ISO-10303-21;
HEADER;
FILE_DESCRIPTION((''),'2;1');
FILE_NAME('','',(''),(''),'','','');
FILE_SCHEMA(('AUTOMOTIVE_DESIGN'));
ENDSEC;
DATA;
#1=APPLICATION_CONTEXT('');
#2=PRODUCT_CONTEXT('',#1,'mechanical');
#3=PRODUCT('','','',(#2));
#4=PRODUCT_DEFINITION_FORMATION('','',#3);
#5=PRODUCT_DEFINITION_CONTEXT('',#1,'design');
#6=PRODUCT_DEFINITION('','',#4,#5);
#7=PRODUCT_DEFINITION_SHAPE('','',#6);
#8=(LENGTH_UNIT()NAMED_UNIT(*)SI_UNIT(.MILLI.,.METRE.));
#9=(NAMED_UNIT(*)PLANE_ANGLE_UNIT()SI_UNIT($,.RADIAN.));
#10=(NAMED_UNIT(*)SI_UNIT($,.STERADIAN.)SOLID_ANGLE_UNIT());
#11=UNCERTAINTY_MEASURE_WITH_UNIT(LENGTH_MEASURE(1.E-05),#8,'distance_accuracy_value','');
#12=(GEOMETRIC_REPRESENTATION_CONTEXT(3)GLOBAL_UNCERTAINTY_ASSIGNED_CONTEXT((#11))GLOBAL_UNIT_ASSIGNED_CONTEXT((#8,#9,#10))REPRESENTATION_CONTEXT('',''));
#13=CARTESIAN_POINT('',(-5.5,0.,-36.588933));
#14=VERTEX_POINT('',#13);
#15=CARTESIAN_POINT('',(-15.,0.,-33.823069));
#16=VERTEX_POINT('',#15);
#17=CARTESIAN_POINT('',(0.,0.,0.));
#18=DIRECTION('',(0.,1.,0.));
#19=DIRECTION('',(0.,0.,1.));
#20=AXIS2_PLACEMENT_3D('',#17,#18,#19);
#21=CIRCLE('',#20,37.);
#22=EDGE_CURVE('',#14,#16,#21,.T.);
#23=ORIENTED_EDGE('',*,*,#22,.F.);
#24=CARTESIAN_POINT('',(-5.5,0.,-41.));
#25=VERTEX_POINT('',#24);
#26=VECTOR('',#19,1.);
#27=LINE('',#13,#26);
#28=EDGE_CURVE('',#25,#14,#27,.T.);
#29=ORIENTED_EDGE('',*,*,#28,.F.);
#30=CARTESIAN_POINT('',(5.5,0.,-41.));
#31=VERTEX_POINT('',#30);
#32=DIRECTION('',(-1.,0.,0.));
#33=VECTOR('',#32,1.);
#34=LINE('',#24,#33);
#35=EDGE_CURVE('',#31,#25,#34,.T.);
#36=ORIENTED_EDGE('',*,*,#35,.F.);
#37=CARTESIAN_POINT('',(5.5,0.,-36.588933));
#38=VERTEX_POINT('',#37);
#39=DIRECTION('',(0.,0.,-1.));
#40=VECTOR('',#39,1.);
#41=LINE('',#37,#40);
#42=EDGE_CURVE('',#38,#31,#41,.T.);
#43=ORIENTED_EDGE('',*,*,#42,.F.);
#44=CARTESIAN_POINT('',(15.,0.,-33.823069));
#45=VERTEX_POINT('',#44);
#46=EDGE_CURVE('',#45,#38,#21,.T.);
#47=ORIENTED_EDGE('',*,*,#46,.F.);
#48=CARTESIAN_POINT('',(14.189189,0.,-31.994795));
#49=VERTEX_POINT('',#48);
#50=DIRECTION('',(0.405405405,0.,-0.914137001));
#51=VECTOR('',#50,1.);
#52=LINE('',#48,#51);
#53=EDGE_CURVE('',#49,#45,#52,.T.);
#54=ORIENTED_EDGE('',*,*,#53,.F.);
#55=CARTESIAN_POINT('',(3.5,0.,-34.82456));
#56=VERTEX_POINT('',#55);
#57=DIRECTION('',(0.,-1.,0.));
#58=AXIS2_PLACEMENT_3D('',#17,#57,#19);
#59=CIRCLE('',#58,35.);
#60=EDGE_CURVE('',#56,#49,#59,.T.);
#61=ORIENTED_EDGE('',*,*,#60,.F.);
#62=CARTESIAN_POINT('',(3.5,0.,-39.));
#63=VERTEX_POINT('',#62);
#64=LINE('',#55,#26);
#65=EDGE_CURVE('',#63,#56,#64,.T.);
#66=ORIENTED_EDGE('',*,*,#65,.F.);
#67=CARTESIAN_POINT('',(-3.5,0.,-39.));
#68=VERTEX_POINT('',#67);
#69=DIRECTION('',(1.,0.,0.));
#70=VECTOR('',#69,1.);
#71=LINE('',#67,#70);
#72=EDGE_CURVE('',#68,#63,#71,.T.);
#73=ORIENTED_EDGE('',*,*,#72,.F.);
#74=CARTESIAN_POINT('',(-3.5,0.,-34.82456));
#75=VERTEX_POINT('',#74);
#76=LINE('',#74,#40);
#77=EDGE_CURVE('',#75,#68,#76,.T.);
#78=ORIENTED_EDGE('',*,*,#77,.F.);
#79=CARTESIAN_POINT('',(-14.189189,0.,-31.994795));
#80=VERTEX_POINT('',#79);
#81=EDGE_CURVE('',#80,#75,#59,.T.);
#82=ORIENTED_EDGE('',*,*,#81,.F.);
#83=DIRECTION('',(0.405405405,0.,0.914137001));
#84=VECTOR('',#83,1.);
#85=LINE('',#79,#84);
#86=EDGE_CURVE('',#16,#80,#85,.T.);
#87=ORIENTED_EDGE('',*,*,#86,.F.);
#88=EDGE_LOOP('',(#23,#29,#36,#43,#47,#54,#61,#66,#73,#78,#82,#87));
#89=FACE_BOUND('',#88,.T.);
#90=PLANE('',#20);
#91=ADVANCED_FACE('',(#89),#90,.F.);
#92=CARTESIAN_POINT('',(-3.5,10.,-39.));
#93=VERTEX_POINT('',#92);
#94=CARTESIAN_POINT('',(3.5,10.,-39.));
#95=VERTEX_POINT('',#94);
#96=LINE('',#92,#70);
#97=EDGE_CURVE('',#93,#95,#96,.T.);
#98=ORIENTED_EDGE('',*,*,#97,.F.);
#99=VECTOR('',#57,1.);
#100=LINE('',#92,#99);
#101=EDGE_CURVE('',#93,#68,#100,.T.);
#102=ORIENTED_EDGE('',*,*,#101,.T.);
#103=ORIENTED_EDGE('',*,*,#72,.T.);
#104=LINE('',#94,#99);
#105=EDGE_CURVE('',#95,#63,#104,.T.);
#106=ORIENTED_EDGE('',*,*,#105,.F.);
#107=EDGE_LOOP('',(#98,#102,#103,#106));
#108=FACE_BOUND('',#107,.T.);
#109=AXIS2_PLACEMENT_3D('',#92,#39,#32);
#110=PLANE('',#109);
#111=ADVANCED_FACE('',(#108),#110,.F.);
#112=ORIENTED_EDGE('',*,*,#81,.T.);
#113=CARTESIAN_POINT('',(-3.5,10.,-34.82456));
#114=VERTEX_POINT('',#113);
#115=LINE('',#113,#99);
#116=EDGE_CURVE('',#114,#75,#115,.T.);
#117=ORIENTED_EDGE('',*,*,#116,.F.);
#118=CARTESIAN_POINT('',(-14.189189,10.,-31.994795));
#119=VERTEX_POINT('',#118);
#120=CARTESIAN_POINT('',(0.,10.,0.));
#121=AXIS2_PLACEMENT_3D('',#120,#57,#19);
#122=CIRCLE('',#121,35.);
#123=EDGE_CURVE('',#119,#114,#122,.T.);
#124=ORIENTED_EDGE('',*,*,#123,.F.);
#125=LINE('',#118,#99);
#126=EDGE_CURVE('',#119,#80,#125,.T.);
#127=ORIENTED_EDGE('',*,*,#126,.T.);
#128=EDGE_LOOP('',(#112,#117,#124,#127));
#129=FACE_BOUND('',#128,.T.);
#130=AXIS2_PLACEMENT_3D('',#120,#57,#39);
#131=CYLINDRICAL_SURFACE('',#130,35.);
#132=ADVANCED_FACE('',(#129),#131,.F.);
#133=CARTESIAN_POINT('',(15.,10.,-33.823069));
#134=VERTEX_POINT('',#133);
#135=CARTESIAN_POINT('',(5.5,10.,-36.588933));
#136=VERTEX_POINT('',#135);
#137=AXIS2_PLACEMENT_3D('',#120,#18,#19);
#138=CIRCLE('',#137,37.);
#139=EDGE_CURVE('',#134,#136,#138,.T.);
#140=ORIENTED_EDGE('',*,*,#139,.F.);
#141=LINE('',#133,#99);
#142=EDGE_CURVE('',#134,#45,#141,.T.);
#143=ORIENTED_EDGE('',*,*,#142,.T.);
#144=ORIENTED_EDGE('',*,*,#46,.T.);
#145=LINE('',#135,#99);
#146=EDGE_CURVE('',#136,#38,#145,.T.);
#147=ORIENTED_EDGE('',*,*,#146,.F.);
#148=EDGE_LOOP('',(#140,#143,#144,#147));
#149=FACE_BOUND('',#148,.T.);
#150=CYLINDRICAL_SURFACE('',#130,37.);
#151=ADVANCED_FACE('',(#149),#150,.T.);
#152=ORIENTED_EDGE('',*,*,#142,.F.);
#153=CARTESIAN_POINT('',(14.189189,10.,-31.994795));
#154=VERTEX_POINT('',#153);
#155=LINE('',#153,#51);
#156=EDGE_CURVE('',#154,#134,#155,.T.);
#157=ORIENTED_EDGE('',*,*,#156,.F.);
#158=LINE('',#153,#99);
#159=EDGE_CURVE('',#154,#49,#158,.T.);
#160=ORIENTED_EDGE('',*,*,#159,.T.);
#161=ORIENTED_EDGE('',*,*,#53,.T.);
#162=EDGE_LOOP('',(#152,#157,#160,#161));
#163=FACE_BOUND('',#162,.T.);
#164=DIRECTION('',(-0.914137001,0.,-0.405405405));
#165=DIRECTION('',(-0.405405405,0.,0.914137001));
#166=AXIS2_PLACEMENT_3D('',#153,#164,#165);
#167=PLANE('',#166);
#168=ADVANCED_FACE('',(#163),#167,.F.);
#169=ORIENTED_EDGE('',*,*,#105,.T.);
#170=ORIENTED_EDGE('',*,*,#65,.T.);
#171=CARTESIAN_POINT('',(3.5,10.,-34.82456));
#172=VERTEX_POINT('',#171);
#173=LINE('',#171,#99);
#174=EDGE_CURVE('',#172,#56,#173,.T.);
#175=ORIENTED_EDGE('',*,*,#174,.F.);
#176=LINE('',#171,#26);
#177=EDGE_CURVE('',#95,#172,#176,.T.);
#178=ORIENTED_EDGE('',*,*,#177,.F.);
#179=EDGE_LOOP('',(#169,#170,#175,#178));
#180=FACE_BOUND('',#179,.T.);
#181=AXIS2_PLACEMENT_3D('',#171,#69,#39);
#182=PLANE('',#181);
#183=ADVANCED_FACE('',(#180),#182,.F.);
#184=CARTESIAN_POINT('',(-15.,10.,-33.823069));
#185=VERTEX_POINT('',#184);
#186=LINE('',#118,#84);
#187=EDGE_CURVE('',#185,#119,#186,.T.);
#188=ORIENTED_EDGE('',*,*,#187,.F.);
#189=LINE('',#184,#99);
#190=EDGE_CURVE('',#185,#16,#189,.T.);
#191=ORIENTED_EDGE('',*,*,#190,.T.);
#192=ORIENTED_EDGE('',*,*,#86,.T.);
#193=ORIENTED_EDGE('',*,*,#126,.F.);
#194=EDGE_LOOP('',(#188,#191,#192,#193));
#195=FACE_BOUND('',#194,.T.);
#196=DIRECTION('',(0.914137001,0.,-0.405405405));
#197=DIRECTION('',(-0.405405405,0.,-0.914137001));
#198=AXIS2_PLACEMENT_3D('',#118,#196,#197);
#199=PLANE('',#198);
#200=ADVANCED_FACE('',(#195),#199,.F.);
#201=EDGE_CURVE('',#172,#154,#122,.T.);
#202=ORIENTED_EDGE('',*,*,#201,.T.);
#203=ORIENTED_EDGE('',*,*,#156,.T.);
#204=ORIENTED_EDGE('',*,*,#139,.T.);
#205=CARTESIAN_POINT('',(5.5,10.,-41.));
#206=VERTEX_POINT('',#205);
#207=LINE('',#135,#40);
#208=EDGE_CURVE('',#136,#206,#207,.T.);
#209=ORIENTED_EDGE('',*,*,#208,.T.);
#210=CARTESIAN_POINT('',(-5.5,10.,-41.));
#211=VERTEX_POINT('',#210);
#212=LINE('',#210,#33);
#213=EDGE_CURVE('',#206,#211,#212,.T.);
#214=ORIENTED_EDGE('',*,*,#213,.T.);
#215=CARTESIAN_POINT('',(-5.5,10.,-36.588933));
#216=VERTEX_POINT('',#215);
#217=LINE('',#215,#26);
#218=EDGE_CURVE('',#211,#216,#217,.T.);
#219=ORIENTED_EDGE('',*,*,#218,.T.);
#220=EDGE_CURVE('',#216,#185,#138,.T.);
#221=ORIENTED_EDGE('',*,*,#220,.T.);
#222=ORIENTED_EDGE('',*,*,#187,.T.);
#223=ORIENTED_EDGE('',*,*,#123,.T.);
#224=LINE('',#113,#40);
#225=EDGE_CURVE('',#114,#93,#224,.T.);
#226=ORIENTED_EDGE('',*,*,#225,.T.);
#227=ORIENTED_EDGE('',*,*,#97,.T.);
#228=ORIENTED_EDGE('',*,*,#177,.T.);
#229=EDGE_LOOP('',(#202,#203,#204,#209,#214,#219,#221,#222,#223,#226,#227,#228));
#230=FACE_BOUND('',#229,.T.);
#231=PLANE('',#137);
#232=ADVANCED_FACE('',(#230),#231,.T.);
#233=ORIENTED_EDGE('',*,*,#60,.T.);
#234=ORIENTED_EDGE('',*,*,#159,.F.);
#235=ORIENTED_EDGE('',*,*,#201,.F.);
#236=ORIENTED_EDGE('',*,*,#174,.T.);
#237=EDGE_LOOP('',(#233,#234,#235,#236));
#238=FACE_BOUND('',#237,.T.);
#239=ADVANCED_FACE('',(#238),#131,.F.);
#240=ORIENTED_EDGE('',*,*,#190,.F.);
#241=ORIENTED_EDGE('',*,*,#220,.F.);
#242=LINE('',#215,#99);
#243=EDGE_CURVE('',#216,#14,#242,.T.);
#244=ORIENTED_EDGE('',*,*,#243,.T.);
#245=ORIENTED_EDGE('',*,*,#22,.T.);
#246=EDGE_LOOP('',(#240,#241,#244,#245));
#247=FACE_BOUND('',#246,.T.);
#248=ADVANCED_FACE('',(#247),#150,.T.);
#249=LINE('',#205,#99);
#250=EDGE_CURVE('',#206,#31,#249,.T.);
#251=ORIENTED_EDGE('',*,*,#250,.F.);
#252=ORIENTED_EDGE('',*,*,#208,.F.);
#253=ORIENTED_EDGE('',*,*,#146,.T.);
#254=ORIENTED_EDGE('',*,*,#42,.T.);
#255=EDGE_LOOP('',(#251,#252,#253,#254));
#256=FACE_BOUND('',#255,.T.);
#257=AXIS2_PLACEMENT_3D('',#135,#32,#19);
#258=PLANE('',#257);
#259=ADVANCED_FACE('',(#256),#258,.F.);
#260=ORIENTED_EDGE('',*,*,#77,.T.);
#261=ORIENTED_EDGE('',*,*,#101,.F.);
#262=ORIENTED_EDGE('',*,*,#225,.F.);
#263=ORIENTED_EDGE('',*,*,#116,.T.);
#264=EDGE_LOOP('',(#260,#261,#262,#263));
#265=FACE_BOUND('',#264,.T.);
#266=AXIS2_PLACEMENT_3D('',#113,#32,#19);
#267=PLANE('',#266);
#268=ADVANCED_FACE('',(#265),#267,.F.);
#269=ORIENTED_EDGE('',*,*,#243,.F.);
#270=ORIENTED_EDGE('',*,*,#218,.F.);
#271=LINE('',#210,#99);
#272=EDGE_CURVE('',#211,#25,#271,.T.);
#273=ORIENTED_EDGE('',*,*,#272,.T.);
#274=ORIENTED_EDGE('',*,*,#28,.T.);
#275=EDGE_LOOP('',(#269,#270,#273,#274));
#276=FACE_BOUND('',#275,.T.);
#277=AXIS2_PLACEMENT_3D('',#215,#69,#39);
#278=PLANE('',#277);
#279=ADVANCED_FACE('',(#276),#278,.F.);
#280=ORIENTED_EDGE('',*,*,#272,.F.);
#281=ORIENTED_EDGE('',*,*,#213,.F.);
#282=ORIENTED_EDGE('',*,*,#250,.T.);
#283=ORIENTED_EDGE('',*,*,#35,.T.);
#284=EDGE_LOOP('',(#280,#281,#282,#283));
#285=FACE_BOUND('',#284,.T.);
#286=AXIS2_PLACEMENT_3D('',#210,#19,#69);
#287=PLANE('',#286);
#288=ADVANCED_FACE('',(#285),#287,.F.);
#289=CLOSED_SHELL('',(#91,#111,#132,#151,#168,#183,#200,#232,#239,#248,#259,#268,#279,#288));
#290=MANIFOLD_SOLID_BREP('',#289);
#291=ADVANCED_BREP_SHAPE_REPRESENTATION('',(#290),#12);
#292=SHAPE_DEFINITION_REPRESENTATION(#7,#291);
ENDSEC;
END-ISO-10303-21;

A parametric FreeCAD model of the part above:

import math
import FreeCAD as App
import Part
import Sketcher

V = App.Vector

doc = App.newDocument("Part")
params = doc.addObject("Spreadsheet::Sheet", "Params")
for row, (alias, value) in enumerate([
    ("sketch1_radius", "35 mm"),
    ("sketch1_radius2", "37 mm"),
    ("sketch1_width", "7 mm"),
    ("sketch1_width2", "11 mm"),
    ("pad1_length", "10 mm"),
], start=1):
    params.set(f"A{row}", alias)
    params.set(f"B{row}", "=" + value)
    params.setAlias(f"B{row}", alias)

body = doc.addObject("PartDesign::Body", "Body")

# Sketch on XZ plane
sketch1 = body.newObject("Sketcher::SketchObject", "Sketch")
sketch1.AttachmentSupport = (doc.getObject("XZ_Plane"), [""])
sketch1.MapMode = "FlatFace"
sketch1.addGeometry([
    Part.LineSegment(V(-15, -33.8, 0), V(-14.2, -32, 0)),  # 0
    Part.ArcOfCircle(Part.Circle(V(0, 0, 0), V(0, 0, 1), 35), math.radians(-113.92), math.radians(-95.74)),  # 1
    Part.LineSegment(V(-3.5, -34.8, 0), V(-3.5, -39, 0)),  # 2
    Part.LineSegment(V(-3.5, -39, 0), V(3.5, -39, 0)),  # 3
    Part.LineSegment(V(3.5, -39, 0), V(3.5, -34.8, 0)),  # 4
    Part.ArcOfCircle(Part.Circle(V(0, 0, 0), V(0, 0, 1), 35), math.radians(-84.26), math.radians(-66.08)),  # 5
    Part.LineSegment(V(14.2, -32, 0), V(15, -33.8, 0)),  # 6
    Part.ArcOfCircle(Part.Circle(V(0, 0, 0), V(0, 0, 1), 37), math.radians(-81.45), math.radians(-66.08)),  # 7
    Part.LineSegment(V(5.5, -36.6, 0), V(5.5, -41, 0)),  # 8
    Part.LineSegment(V(5.5, -41, 0), V(-5.5, -41, 0)),  # 9
    Part.LineSegment(V(-5.5, -41, 0), V(-5.5, -36.6, 0)),  # 10
    Part.ArcOfCircle(Part.Circle(V(0, 0, 0), V(0, 0, 1), 37), math.radians(-113.92), math.radians(-98.55)),  # 11
], False)
sketch1.addConstraint([
    Sketcher.Constraint("Coincident", 0, 2, 1, 1),
    Sketcher.Constraint("Coincident", 1, 2, 2, 1),
    Sketcher.Constraint("Coincident", 2, 2, 3, 1),
    Sketcher.Constraint("Coincident", 3, 2, 4, 1),
    Sketcher.Constraint("Coincident", 4, 2, 5, 1),
    Sketcher.Constraint("Coincident", 5, 2, 6, 1),
    Sketcher.Constraint("Coincident", 6, 2, 7, 2),
    Sketcher.Constraint("Coincident", 7, 1, 8, 1),
    Sketcher.Constraint("Coincident", 8, 2, 9, 1),
    Sketcher.Constraint("Coincident", 9, 2, 10, 1),
    Sketcher.Constraint("Coincident", 10, 2, 11, 2),
    Sketcher.Constraint("Coincident", 11, 1, 0, 1),
    Sketcher.Constraint("Vertical", 2),
    Sketcher.Constraint("Horizontal", 3),
    Sketcher.Constraint("Vertical", 4),
    Sketcher.Constraint("Vertical", 8),
    Sketcher.Constraint("Horizontal", 9),
    Sketcher.Constraint("Vertical", 10),
    Sketcher.Constraint("Coincident", 1, 3, -1, 1),
    Sketcher.Constraint("Coincident", 5, 3, -1, 1),
    Sketcher.Constraint("Coincident", 7, 3, -1, 1),
    Sketcher.Constraint("Coincident", 11, 3, -1, 1),
    Sketcher.Constraint("Equal", 1, 5),
    Sketcher.Constraint("Equal", 7, 11),
    Sketcher.Constraint("Horizontal", 1, 2, 4, 2),
    Sketcher.Constraint("Horizontal", 0, 2, 5, 2),
    Sketcher.Constraint("Horizontal", 7, 1, 10, 2),
    Sketcher.Constraint("Horizontal", 6, 2, 11, 1),
    Sketcher.Constraint("Radius", 1, 35.0),
    Sketcher.Constraint("Radius", 7, 37.0),
    Sketcher.Constraint("DistanceX", 3, 1, 3, 2, 7.0),
    Sketcher.Constraint("DistanceX", 9, 2, 9, 1, 11.0),
    Sketcher.Constraint("DistanceY", 2, 2, -1, 1, 39.0),
    Sketcher.Constraint("DistanceX", -1, 1, 6, 2, 15.0),
    Sketcher.Constraint("DistanceY", 8, 2, -1, 1, 41.0),
    Sketcher.Constraint("DistanceX", 0, 2, -1, 1, 14.189189),
])
sketch1.setExpression("Constraints[28]", "Params.sketch1_radius")
sketch1.setExpression("Constraints[29]", "Params.sketch1_radius2")
sketch1.setExpression("Constraints[30]", "Params.sketch1_width")
sketch1.setExpression("Constraints[31]", "Params.sketch1_width2")
pad1 = body.newObject("PartDesign::Pad", "Pad")
pad1.Profile = sketch1
pad1.setExpression("Length", "Params.pad1_length")
pad1.Reversed = True

doc.recompute()
